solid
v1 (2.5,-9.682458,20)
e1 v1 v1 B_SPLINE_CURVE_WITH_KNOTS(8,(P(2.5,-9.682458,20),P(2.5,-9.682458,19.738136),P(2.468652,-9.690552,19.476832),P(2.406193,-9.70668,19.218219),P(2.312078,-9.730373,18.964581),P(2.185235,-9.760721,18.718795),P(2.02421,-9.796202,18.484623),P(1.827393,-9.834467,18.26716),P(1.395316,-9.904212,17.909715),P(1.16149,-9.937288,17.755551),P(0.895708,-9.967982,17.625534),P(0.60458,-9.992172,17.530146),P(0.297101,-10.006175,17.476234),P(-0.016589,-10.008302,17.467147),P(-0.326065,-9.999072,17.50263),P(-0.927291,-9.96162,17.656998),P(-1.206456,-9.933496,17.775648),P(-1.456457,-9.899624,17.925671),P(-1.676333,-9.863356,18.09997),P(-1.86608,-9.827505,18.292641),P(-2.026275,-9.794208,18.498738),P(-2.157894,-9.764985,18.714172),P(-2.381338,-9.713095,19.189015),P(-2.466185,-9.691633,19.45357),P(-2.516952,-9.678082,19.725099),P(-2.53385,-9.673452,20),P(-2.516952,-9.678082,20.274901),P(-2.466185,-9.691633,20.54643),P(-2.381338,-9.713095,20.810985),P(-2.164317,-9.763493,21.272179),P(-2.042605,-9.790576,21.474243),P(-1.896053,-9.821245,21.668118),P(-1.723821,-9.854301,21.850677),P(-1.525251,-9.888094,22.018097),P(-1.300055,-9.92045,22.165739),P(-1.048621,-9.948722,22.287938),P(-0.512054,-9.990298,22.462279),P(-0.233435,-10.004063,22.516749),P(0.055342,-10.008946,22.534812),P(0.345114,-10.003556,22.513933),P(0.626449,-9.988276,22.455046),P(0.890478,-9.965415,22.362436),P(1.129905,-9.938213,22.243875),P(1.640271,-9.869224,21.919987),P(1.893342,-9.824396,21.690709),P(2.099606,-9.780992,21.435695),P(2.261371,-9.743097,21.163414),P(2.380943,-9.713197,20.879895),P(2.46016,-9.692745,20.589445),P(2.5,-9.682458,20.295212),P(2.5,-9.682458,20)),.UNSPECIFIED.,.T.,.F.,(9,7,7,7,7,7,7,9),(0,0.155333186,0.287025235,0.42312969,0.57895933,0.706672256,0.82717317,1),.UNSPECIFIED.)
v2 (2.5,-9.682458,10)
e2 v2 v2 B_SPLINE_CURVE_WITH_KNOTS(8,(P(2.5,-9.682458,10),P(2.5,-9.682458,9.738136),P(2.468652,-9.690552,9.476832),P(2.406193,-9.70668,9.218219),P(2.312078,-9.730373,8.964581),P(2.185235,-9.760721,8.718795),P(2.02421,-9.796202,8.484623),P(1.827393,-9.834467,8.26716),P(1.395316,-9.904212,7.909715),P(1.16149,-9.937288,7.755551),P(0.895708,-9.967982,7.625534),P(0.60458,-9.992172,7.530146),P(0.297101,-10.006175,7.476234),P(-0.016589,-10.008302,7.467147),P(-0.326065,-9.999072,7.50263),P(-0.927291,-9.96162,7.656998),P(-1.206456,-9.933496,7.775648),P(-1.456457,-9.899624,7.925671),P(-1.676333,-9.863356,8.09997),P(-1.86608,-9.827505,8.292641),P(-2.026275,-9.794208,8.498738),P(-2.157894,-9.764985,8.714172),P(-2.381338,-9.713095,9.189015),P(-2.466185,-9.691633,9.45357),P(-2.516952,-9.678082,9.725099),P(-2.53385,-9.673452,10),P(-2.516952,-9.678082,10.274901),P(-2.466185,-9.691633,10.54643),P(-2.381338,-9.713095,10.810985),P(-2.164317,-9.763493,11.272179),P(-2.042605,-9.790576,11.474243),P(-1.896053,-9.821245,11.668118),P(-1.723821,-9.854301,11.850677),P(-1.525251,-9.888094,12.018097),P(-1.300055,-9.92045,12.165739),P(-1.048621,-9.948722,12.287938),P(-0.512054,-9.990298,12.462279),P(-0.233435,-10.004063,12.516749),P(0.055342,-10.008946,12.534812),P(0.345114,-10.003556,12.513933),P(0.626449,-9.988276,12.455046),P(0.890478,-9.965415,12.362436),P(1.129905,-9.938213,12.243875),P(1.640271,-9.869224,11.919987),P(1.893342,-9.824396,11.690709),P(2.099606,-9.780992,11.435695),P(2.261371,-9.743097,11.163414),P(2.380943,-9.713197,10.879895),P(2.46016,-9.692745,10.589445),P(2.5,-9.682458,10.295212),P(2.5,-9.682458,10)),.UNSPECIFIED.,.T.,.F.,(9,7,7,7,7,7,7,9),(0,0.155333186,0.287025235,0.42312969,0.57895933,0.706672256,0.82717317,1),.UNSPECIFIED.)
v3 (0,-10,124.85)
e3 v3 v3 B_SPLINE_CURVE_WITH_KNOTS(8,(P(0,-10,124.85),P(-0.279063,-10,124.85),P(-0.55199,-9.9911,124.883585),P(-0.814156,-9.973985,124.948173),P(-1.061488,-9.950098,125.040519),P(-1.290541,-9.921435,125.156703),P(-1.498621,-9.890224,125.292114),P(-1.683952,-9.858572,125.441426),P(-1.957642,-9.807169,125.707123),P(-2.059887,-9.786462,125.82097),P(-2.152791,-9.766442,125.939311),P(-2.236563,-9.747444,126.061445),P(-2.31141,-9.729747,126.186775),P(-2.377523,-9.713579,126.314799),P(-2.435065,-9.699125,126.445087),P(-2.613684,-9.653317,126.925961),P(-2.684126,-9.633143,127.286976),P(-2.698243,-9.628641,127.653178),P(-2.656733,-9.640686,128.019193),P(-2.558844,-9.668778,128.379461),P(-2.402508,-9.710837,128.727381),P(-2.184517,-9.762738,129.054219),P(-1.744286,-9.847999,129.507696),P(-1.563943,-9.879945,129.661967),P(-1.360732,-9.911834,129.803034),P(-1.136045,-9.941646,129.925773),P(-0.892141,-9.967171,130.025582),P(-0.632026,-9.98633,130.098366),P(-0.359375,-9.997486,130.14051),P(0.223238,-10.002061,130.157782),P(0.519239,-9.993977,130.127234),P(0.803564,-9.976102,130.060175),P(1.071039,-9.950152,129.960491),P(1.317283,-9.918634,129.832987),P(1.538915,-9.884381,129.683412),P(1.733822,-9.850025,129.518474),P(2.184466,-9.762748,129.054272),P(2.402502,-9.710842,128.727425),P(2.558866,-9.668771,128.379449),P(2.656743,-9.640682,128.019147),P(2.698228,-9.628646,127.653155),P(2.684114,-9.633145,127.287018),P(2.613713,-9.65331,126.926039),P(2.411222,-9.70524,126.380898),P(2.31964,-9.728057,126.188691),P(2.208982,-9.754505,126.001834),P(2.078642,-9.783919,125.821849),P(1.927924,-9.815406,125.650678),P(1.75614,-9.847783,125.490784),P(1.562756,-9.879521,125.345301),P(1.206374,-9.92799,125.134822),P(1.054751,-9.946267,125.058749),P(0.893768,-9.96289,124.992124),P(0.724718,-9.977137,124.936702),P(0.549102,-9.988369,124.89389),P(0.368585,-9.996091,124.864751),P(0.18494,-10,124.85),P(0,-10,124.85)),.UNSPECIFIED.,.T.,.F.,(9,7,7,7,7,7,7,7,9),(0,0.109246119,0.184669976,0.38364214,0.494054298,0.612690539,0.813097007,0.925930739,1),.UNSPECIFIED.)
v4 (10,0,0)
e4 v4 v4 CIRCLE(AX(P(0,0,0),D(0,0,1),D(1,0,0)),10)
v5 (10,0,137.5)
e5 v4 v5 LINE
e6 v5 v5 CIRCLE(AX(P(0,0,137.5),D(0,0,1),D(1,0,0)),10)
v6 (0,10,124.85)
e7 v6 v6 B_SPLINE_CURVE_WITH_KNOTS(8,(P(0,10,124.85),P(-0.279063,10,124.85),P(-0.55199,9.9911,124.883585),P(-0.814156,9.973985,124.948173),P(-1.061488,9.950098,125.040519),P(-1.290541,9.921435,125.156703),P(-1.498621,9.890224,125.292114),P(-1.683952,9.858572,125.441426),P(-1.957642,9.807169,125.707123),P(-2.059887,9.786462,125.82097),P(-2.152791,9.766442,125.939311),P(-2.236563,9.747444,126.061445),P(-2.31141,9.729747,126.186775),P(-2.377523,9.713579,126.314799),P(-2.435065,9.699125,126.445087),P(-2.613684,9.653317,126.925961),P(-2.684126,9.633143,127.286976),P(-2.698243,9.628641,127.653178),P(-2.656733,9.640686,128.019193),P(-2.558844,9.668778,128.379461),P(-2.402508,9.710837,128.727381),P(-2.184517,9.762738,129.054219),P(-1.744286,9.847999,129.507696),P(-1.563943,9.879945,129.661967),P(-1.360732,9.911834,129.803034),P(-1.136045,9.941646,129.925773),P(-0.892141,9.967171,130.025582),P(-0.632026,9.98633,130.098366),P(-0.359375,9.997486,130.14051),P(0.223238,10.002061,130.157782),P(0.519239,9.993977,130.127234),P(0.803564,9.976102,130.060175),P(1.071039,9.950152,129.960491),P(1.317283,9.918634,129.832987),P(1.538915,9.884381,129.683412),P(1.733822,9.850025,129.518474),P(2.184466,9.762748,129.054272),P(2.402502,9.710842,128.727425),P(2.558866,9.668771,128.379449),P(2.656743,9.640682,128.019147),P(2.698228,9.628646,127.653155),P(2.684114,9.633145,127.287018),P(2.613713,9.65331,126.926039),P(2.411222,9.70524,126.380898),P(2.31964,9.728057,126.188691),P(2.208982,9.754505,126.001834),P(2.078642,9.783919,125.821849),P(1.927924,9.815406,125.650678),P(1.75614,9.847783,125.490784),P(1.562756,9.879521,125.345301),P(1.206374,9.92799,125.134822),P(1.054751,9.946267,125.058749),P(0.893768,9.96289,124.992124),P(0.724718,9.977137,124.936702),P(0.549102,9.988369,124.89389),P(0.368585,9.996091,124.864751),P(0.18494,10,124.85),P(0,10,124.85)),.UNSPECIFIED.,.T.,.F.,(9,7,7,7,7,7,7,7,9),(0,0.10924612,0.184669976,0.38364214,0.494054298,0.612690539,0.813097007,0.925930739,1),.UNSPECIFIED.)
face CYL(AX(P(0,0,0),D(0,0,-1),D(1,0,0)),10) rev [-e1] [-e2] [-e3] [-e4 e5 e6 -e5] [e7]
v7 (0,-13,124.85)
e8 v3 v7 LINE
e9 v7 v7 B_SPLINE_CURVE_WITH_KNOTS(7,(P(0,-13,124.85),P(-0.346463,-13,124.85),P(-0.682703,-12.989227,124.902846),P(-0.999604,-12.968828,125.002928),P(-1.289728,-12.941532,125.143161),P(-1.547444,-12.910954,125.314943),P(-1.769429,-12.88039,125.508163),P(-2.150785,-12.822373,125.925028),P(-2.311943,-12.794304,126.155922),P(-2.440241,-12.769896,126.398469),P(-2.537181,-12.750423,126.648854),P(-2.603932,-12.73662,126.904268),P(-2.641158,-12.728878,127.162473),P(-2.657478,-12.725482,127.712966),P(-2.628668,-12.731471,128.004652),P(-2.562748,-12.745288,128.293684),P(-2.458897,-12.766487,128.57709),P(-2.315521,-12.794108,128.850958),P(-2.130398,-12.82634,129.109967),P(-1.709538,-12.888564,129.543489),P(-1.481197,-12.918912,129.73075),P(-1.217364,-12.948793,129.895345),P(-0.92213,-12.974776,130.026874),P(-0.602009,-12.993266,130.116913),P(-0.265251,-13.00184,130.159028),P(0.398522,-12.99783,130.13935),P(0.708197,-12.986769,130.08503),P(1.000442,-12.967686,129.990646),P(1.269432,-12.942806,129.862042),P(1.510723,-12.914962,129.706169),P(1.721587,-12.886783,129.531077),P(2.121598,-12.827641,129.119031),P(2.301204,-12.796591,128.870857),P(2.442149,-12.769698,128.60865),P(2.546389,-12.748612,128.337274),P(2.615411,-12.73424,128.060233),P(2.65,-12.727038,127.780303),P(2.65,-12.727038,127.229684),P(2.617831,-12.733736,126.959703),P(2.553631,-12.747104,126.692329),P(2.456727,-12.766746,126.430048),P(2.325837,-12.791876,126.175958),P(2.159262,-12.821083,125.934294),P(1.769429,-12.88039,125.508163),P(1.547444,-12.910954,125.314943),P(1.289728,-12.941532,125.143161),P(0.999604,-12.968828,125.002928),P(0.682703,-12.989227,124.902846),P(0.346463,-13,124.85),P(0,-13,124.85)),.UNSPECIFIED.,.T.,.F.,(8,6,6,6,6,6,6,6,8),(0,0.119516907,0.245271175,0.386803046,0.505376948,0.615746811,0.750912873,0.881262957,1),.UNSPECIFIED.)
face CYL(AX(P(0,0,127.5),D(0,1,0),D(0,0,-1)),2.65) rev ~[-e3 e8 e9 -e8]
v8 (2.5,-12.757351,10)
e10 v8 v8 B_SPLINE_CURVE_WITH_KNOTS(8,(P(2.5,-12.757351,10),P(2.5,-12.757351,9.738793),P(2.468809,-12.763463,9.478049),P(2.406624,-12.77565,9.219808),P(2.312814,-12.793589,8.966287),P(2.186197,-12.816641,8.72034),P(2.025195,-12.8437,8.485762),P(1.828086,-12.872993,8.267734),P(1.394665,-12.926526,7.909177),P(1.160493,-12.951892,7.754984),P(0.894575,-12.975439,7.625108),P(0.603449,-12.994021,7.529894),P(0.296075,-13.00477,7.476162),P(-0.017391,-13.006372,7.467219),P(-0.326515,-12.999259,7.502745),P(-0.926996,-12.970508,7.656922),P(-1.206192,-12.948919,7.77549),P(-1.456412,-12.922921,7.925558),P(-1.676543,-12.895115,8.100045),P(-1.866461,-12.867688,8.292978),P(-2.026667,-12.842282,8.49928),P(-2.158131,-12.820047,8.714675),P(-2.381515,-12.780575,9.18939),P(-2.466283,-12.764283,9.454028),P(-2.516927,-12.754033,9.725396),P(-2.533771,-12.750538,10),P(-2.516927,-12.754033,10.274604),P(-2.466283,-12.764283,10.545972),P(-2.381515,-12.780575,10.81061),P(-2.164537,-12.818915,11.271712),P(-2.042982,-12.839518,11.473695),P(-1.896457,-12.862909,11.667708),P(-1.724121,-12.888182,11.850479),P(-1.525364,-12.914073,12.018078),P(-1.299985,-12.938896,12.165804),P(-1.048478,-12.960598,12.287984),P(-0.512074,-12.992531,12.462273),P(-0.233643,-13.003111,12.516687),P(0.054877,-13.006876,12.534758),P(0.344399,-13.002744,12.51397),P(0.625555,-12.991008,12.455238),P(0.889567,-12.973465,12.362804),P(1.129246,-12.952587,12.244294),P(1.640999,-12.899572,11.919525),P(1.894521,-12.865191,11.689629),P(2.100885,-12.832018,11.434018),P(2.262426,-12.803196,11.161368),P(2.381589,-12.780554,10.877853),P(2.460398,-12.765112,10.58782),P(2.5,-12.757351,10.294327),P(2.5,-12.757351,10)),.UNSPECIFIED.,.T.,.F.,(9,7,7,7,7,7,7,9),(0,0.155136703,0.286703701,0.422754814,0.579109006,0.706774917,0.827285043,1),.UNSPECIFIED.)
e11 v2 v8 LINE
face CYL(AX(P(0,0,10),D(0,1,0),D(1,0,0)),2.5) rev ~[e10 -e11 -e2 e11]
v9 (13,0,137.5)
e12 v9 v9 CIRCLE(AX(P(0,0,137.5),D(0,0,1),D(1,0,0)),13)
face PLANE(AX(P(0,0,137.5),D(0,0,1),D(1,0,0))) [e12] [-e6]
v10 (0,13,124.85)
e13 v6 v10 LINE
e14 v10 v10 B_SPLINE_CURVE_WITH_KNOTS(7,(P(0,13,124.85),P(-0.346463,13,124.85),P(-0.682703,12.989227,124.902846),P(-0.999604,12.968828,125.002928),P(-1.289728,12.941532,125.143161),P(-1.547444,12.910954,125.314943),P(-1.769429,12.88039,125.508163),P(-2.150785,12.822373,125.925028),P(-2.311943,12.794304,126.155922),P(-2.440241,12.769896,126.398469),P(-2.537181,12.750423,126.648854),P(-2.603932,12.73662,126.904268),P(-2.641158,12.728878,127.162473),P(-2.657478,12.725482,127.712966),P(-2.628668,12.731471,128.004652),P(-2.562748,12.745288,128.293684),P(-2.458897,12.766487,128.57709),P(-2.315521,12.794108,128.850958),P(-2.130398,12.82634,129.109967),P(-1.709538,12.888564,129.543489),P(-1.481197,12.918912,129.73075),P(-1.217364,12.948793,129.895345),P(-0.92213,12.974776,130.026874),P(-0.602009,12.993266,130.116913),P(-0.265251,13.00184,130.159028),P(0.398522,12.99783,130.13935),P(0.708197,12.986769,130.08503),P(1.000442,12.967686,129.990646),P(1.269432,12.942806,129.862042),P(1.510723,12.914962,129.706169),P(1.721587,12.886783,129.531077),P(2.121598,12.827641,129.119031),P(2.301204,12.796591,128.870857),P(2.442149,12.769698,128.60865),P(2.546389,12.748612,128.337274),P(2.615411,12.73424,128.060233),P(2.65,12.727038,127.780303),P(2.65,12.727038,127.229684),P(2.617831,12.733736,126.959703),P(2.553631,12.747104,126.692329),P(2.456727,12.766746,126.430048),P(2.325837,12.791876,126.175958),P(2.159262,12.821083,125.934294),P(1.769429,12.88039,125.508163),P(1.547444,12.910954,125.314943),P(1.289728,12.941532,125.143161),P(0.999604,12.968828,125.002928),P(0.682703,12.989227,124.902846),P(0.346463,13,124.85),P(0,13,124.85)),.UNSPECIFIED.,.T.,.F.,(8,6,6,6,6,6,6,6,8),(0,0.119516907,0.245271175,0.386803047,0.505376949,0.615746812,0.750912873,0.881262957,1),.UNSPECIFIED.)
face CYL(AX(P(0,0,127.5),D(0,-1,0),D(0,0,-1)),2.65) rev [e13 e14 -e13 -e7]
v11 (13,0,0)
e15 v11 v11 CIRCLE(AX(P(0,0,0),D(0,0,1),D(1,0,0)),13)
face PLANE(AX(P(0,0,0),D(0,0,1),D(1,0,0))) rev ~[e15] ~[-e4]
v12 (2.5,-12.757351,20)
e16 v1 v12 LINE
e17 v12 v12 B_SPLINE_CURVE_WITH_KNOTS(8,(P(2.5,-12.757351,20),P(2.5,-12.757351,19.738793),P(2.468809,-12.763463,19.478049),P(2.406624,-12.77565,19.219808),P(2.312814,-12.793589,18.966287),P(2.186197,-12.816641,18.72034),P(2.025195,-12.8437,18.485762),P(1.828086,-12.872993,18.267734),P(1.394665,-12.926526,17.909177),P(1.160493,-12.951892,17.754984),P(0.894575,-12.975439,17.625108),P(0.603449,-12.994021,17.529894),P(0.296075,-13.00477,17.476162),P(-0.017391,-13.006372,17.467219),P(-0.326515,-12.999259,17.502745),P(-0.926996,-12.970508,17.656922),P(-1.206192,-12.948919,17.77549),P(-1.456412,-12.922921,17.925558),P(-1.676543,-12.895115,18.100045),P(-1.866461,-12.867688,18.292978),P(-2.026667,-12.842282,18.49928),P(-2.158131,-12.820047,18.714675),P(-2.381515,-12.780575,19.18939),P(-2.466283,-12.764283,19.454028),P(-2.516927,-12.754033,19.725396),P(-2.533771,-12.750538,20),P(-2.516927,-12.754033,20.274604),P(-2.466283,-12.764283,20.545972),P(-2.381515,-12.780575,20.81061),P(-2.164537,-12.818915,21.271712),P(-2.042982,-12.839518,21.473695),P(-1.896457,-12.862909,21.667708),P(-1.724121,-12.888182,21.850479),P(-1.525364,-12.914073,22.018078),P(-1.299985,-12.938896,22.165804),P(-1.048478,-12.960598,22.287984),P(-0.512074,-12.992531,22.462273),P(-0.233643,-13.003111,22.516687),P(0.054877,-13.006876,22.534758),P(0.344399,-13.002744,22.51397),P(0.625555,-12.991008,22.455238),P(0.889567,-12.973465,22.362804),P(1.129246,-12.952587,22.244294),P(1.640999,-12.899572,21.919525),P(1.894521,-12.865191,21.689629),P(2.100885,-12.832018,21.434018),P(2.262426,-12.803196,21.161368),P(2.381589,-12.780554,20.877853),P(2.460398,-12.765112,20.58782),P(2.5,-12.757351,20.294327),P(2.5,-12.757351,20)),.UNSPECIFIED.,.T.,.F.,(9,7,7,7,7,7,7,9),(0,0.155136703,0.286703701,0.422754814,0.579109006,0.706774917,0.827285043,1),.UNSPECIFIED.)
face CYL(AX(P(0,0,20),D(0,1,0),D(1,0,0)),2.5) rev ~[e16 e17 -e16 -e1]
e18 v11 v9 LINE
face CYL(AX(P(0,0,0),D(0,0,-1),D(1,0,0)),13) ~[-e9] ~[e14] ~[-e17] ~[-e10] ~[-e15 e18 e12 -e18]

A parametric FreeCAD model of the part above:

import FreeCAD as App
import Part
import Sketcher

doc = App.newDocument("Part")
body = doc.addObject("PartDesign::Body", "Body")

sketch1 = body.newObject("Sketcher::SketchObject", "Sketch")
sketch1.AttachmentSupport = (doc.getObject("XY_Plane"), [""])
sketch1.MapMode = "FlatFace"
sketch1.addGeometry([
    Part.Circle(App.Vector(0, 0, 0), App.Vector(0, 0, 1), 13),
    Part.Circle(App.Vector(0, 0, 0), App.Vector(0, 0, 1), 10),
], False)
sketch1.addConstraint([
    Sketcher.Constraint("Coincident", 0, 3, -1, 1),
    Sketcher.Constraint("Coincident", 1, 3, -1, 1),
    Sketcher.Constraint("Diameter", 0, 26.0),
    Sketcher.Constraint("Diameter", 1, 20.0),
])
pad1 = body.newObject("PartDesign::Pad", "Pad")
pad1.Profile = sketch1
pad1.Length = 137.5

sketch2 = body.newObject("Sketcher::SketchObject", "Sketch001")
sketch2.AttachmentSupport = (doc.getObject("XZ_Plane"), [""])
sketch2.MapMode = "FlatFace"
sketch2.addGeometry([
    Part.Circle(App.Vector(0, 10, 0), App.Vector(0, 0, 1), 2.5),
    Part.Circle(App.Vector(0, 20, 0), App.Vector(0, 0, 1), 2.5),
], False)
sketch2.addConstraint([
    Sketcher.Constraint("Equal", 0, 1),
    Sketcher.Constraint("PointOnObject", 0, 3, -2),
    Sketcher.Constraint("PointOnObject", 1, 3, -2),
    Sketcher.Constraint("Diameter", 0, 5.0),
    Sketcher.Constraint("DistanceY", -1, 1, 0, 3, 10.0),
    Sketcher.Constraint("DistanceY", -1, 1, 1, 3, 20.0),
])
pocket1 = body.newObject("PartDesign::Pocket", "Pocket")
pocket1.Profile = sketch2
pocket1.Type = "ThroughAll"
pocket1.Reversed = True

sketch3 = body.newObject("Sketcher::SketchObject", "Sketch002")
sketch3.AttachmentSupport = (doc.getObject("XZ_Plane"), [""])
sketch3.MapMode = "FlatFace"
sketch3.addGeometry(Part.Circle(App.Vector(0, 127.5, 0), App.Vector(0, 0, 1), 2.65), False)
sketch3.addConstraint([
    Sketcher.Constraint("PointOnObject", 0, 3, -2),
    Sketcher.Constraint("Diameter", 0, 5.3),
    Sketcher.Constraint("DistanceY", -1, 1, 0, 3, 127.5),
])
pocket2 = body.newObject("PartDesign::Pocket", "Pocket001")
pocket2.Profile = sketch3
pocket2.Type = "ThroughAll"
pocket2.Midplane = True

doc.recompute()
